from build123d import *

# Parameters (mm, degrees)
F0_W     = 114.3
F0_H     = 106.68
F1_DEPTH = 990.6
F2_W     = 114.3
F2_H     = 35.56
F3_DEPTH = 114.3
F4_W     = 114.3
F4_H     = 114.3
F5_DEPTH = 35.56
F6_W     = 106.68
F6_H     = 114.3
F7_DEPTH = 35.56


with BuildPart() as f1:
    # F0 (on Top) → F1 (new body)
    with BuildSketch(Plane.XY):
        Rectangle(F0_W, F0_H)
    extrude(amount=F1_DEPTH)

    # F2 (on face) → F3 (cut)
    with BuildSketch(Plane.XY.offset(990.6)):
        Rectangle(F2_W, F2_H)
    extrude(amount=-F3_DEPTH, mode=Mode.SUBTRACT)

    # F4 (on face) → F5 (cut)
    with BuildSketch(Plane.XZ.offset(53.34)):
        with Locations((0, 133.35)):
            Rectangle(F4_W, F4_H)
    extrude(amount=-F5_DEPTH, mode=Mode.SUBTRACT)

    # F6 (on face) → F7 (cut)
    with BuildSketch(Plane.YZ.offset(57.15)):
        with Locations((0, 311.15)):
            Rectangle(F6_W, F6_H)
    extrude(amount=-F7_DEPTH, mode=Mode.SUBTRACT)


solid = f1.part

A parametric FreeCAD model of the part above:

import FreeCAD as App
import Part
import Sketcher
Q = App.Units.Quantity

doc = App.newDocument("Part")
params = doc.addObject("Spreadsheet::Sheet", "Params")
for row, (alias, value) in enumerate([
    ("sketch1_width", "4.5 in"),
    ("sketch1_height", "4.2 in"),
    ("pad1_length", "39 in"),
    ("sketch2_width", "4.5 in"),
    ("sketch2_height", "1.4 in"),
    ("pocket1_length", "4.5 in"),
    ("sketch3_width", "4.5 in"),
    ("pocket2_length", "1.4 in"),
    ("sketch4_width", "4.2 in"),
    ("sketch4_height", "4.5 in"),
    ("pocket3_length", "1.4 in"),
], start=1):
    params.set(f"A{row}", alias)
    params.set(f"B{row}", "=" + value)
    params.setAlias(f"B{row}", alias)

body = doc.addObject("PartDesign::Body", "Body")

# Sketch on XY plane
sketch1 = body.newObject("Sketcher::SketchObject", "Sketch")
sketch1.AttachmentSupport = (doc.getObject("XY_Plane"), [""])
sketch1.MapMode = "FlatFace"
sketch1.addGeometry([
    Part.LineSegment(App.Vector(-57.15, 53.34, 0), App.Vector(-57.15, -53.34, 0)),
    Part.LineSegment(App.Vector(-57.15, -53.34, 0), App.Vector(57.15, -53.34, 0)),
    Part.LineSegment(App.Vector(57.15, -53.34, 0), App.Vector(57.15, 53.34, 0)),
    Part.LineSegment(App.Vector(57.15, 53.34, 0), App.Vector(-57.15, 53.34, 0)),
], False)
sketch1.addConstraint([
    Sketcher.Constraint("Coincident", 0, 2, 1, 1),
    Sketcher.Constraint("Coincident", 1, 2, 2, 1),
    Sketcher.Constraint("Coincident", 2, 2, 3, 1),
    Sketcher.Constraint("Coincident", 3, 2, 0, 1),
    Sketcher.Constraint("Vertical", 0),
    Sketcher.Constraint("Horizontal", 1),
    Sketcher.Constraint("Vertical", 2),
    Sketcher.Constraint("Horizontal", 3),
    Sketcher.Constraint("Symmetric", 0, 2, 2, 2, -1, 1),
    Sketcher.Constraint("DistanceX", 1, 1, 1, 2, Q("4.5 in")),
    Sketcher.Constraint("DistanceY", 0, 2, 0, 1, Q("4.2 in")),
])
sketch1.setExpression("Constraints[9]", "Params.sketch1_width")
sketch1.setExpression("Constraints[10]", "Params.sketch1_height")
pad1 = body.newObject("PartDesign::Pad", "Pad")
pad1.Profile = sketch1
pad1.setExpression("Length", "Params.pad1_length")

# Sketch on XY plane
sketch2 = body.newObject("Sketcher::SketchObject", "Sketch001")
sketch2.AttachmentSupport = (doc.getObject("XY_Plane"), [""])
sketch2.MapMode = "FlatFace"
sketch2.AttachmentOffset = App.Placement(App.Vector(0, 0, 39 * 25.4), App.Rotation())
sketch2.addGeometry([
    Part.LineSegment(App.Vector(-57.15, 17.78, 0), App.Vector(-57.15, -17.78, 0)),
    Part.LineSegment(App.Vector(-57.15, -17.78, 0), App.Vector(57.15, -17.78, 0)),
    Part.LineSegment(App.Vector(57.15, -17.78, 0), App.Vector(57.15, 17.78, 0)),
    Part.LineSegment(App.Vector(57.15, 17.78, 0), App.Vector(-57.15, 17.78, 0)),
], False)
sketch2.addConstraint([
    Sketcher.Constraint("Coincident", 0, 2, 1, 1),
    Sketcher.Constraint("Coincident", 1, 2, 2, 1),
    Sketcher.Constraint("Coincident", 2, 2, 3, 1),
    Sketcher.Constraint("Coincident", 3, 2, 0, 1),
    Sketcher.Constraint("Vertical", 0),
    Sketcher.Constraint("Horizontal", 1),
    Sketcher.Constraint("Vertical", 2),
    Sketcher.Constraint("Horizontal", 3),
    Sketcher.Constraint("Symmetric", 0, 2, 2, 2, -1, 1),
    Sketcher.Constraint("DistanceX", 1, 1, 1, 2, Q("4.5 in")),
    Sketcher.Constraint("DistanceY", 0, 2, 0, 1, Q("1.4 in")),
])
sketch2.setExpression("Constraints[9]", "Params.sketch2_width")
sketch2.setExpression("Constraints[10]", "Params.sketch2_height")
pocket1 = body.newObject("PartDesign::Pocket", "Pocket")
pocket1.Profile = sketch2
pocket1.setExpression("Length", "Params.pocket1_length")

# Sketch on XZ plane
sketch3 = body.newObject("Sketcher::SketchObject", "Sketch002")
sketch3.AttachmentSupport = (doc.getObject("XZ_Plane"), [""])
sketch3.MapMode = "FlatFace"
sketch3.AttachmentOffset = App.Placement(App.Vector(0, 0, 2.1 * 25.4), App.Rotation())
sketch3.addGeometry([
    Part.LineSegment(App.Vector(-57.15, 190.5, 0), App.Vector(-57.15, 76.2, 0)),
    Part.LineSegment(App.Vector(-57.15, 76.2, 0), App.Vector(57.15, 76.2, 0)),
    Part.LineSegment(App.Vector(57.15, 76.2, 0), App.Vector(57.15, 190.5, 0)),
    Part.LineSegment(App.Vector(57.15, 190.5, 0), App.Vector(-57.15, 190.5, 0)),
], False)
sketch3.addConstraint([
    Sketcher.Constraint("Coincident", 0, 2, 1, 1),
    Sketcher.Constraint("Coincident", 1, 2, 2, 1),
    Sketcher.Constraint("Coincident", 2, 2, 3, 1),
    Sketcher.Constraint("Coincident", 3, 2, 0, 1),
    Sketcher.Constraint("Vertical", 0),
    Sketcher.Constraint("Horizontal", 1),
    Sketcher.Constraint("Vertical", 2),
    Sketcher.Constraint("Horizontal", 3),
    Sketcher.Constraint("Equal", 3, 0),
    Sketcher.Constraint("DistanceX", 1, 1, 1, 2, Q("4.5 in")),
    Sketcher.Constraint("DistanceY", -1, 1, 0, 2, Q("3 in")),
    Sketcher.Constraint("DistanceX", 0, 2, -1, 1, Q("2.25 in")),
])
sketch3.setExpression("Constraints[9]", "Params.sketch3_width")
pocket2 = body.newObject("PartDesign::Pocket", "Pocket001")
pocket2.Profile = sketch3
pocket2.setExpression("Length", "Params.pocket2_length")

# Sketch on YZ plane
sketch4 = body.newObject("Sketcher::SketchObject", "Sketch003")
sketch4.AttachmentSupport = (doc.getObject("YZ_Plane"), [""])
sketch4.MapMode = "FlatFace"
sketch4.AttachmentOffset = App.Placement(App.Vector(0, 0, 2.25 * 25.4), App.Rotation())
sketch4.addGeometry([
    Part.LineSegment(App.Vector(-53.34, 368.3, 0), App.Vector(-53.34, 254, 0)),
    Part.LineSegment(App.Vector(-53.34, 254, 0), App.Vector(53.34, 254, 0)),
    Part.LineSegment(App.Vector(53.34, 254, 0), App.Vector(53.34, 368.3, 0)),
    Part.LineSegment(App.Vector(53.34, 368.3, 0), App.Vector(-53.34, 368.3, 0)),
], False)
sketch4.addConstraint([
    Sketcher.Constraint("Coincident", 0, 2, 1, 1),
    Sketcher.Constraint("Coincident", 1, 2, 2, 1),
    Sketcher.Constraint("Coincident", 2, 2, 3, 1),
    Sketcher.Constraint("Coincident", 3, 2, 0, 1),
    Sketcher.Constraint("Vertical", 0),
    Sketcher.Constraint("Horizontal", 1),
    Sketcher.Constraint("Vertical", 2),
    Sketcher.Constraint("Horizontal", 3),
    Sketcher.Constraint("DistanceX", 1, 1, 1, 2, Q("4.2 in")),
    Sketcher.Constraint("DistanceY", 0, 2, 0, 1, Q("4.5 in")),
    Sketcher.Constraint("DistanceY", -1, 1, 0, 2, Q("10 in")),
    Sketcher.Constraint("DistanceX", 0, 2, -1, 1, Q("2.1 in")),
])
sketch4.setExpression("Constraints[8]", "Params.sketch4_width")
sketch4.setExpression("Constraints[9]", "Params.sketch4_height")
pocket3 = body.newObject("PartDesign::Pocket", "Pocket002")
pocket3.Profile = sketch4
pocket3.setExpression("Length", "Params.pocket3_length")

doc.recompute()
